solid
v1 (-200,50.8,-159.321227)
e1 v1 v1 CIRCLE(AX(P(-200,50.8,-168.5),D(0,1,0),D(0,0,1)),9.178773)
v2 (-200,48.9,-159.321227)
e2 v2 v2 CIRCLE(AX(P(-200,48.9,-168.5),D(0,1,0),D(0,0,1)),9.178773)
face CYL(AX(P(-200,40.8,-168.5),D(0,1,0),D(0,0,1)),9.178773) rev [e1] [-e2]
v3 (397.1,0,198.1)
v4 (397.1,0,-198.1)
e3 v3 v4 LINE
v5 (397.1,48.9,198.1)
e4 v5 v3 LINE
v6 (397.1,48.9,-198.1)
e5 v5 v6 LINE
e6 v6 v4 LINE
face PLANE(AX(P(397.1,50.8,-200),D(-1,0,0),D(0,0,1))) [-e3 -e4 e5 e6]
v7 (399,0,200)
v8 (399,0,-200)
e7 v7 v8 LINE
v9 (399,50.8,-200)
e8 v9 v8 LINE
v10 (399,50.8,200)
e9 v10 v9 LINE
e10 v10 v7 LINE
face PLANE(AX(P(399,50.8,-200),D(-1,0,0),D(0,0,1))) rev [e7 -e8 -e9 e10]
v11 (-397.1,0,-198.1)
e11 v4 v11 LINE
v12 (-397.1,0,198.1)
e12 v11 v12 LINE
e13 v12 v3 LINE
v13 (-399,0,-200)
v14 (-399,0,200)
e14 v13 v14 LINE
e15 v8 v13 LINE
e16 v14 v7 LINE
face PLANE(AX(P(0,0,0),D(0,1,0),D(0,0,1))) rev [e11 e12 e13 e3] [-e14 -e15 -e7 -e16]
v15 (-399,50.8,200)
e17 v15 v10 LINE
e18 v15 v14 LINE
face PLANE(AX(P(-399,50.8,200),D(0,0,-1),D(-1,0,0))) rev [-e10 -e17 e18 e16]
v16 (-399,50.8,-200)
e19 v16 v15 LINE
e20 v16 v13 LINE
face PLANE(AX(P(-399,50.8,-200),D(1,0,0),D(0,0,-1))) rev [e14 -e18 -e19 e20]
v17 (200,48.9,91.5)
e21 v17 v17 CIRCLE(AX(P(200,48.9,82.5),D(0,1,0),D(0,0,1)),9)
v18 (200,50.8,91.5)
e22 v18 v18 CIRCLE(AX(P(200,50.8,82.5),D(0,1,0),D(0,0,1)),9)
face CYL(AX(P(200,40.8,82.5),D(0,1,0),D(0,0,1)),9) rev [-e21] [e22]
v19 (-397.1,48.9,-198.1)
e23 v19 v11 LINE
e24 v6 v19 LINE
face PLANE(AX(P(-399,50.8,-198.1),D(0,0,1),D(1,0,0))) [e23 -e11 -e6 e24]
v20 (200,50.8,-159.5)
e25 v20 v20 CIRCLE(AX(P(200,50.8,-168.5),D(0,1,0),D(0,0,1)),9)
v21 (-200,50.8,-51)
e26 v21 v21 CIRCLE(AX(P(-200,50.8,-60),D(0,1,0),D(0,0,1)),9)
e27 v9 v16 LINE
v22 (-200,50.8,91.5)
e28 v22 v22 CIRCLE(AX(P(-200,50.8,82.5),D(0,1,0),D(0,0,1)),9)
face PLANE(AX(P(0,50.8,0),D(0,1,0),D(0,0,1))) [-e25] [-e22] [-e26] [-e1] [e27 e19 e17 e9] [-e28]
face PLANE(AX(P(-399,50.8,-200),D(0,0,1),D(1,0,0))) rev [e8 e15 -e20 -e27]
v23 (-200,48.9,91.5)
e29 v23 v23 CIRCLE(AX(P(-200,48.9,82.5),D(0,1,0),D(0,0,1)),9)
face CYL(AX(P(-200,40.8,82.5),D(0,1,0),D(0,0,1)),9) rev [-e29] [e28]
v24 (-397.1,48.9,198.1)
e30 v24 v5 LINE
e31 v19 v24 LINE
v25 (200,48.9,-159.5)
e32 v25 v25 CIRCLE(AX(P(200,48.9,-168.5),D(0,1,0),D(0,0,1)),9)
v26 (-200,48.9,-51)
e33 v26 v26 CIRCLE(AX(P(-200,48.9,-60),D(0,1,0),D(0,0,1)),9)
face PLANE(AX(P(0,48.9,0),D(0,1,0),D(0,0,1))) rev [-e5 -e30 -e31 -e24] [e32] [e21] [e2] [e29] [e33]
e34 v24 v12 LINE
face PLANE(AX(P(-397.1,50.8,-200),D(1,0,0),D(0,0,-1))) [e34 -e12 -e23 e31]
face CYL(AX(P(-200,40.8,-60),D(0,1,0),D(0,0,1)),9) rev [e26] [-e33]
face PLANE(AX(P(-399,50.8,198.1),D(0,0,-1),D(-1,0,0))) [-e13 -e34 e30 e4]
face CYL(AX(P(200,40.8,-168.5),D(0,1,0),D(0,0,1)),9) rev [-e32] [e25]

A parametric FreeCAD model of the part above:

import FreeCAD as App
import Part
import Sketcher

V = App.Vector
Q = App.Units.Quantity


def faces_at(feature, points):
    """Names of the faces that lie closest to the given points."""
    faces = feature.Shape.Faces
    near = lambda p: min(range(len(faces)), key=lambda i: faces[i].distToShape(Part.Vertex(*p))[0])
    return sorted({f"Face{near(p) + 1}" for p in points})

doc = App.newDocument("Part")
body = doc.addObject("PartDesign::Body", "Body")

sketch1 = doc.addObject("Sketcher::SketchObject", "Sketch")
body.addObject(sketch1)
sketch1.AttachmentSupport = (doc.XZ_Plane, [""])
sketch1.MapMode = "FlatFace"
sketch1.addGeometry(Part.LineSegment(V(-399, -200, 0), V(-399, 200, 0)), False)
sketch1.addGeometry(Part.LineSegment(V(-399, 200, 0), V(399, 200, 0)), False)
sketch1.addGeometry(Part.LineSegment(V(399, 200, 0), V(399, -200, 0)), False)
sketch1.addGeometry(Part.LineSegment(V(399, -200, 0), V(-399, -200, 0)), False)
sketch1.addConstraint(Sketcher.Constraint("Coincident", 0, 2, 1, 1))
sketch1.addConstraint(Sketcher.Constraint("Coincident", 1, 2, 2, 1))
sketch1.addConstraint(Sketcher.Constraint("Coincident", 2, 2, 3, 1))
sketch1.addConstraint(Sketcher.Constraint("Coincident", 3, 2, 0, 1))
sketch1.addConstraint(Sketcher.Constraint("Vertical", 0))
sketch1.addConstraint(Sketcher.Constraint("Horizontal", 1))
sketch1.addConstraint(Sketcher.Constraint("Vertical", 2))
sketch1.addConstraint(Sketcher.Constraint("Horizontal", 3))
sketch1.addConstraint(Sketcher.Constraint("Symmetric", 0, 2, 2, 2, -1, 1))
sketch1.addConstraint(Sketcher.Constraint("DistanceX", 1, 1, 1, 2, Q("798 mm")))
sketch1.addConstraint(Sketcher.Constraint("DistanceY", 0, 1, 0, 2, Q("400 mm")))
pad1 = doc.addObject("PartDesign::Pad", "Pad")
body.addObject(pad1)
pad1.Profile = sketch1
pad1.Length = 50.8
pad1.Reversed = True
doc.recompute()

thickness = doc.addObject("PartDesign::Thickness", "Thickness")
body.addObject(thickness)
thickness.Base = (pad1, faces_at(pad1, [(0, 0, 0)]))
thickness.Value = 1.9
thickness.Reversed = True
thickness.Join = "Intersection"

sketch2 = doc.addObject("Sketcher::SketchObject", "Sketch001")
body.addObject(sketch2)
sketch2.AttachmentSupport = (doc.XZ_Plane, [""])
sketch2.MapMode = "FlatFace"
sketch2.AttachmentOffset = App.Placement(V(0, 0, -50.8), App.Rotation())
sketch2.addGeometry(Part.Circle(V(200, 82, 0), V(0, 0, 1), 9), False)
sketch2.addGeometry(Part.Circle(V(200, -168, 0), V(0, 0, 1), 9), False)
sketch2.addGeometry(Part.Circle(V(-200, 82, 0), V(0, 0, 1), 9), False)
sketch2.addGeometry(Part.Circle(V(-200, -60, 0), V(0, 0, 1), 9), False)
sketch2.addGeometry(Part.Circle(V(-200, -168, 0), V(0, 0, 1), 9), False)
sketch2.addConstraint(Sketcher.Constraint("Equal", 0, 1))
sketch2.addConstraint(Sketcher.Constraint("Equal", 1, 2))
sketch2.addConstraint(Sketcher.Constraint("Equal", 2, 3))
sketch2.addConstraint(Sketcher.Constraint("Symmetric", 0, 3, 2, 3, -2))
sketch2.addConstraint(Sketcher.Constraint("Symmetric", 1, 3, 4, 3, -2))
sketch2.addConstraint(Sketcher.Constraint("Vertical", 0, 3, 1, 3))
sketch2.addConstraint(Sketcher.Constraint("Vertical", 2, 3, 3, 3))
sketch2.addConstraint(Sketcher.Constraint("Diameter", 0, Q("18 mm")))
sketch2.addConstraint(Sketcher.Constraint("DistanceX", -1, 1, 0, 3, Q("200 mm")))
sketch2.addConstraint(Sketcher.Constraint("DistanceY", 3, 3, -1, 1, Q("60 mm")))
sketch2.addConstraint(Sketcher.Constraint("DistanceY", 1, 3, 0, 3, Q("251 mm")))
sketch2.addConstraint(Sketcher.Constraint("DistanceY", -1, 1, 0, 3, Q("82.5 mm")))
sketch2.addConstraint(Sketcher.Constraint("Diameter", 4, Q("18.357546 mm")))
pocket1 = doc.addObject("PartDesign::Pocket", "Pocket")
body.addObject(pocket1)
pocket1.Profile = sketch2
pocket1.Length = 10
pocket1.Reversed = True

doc.recompute()
